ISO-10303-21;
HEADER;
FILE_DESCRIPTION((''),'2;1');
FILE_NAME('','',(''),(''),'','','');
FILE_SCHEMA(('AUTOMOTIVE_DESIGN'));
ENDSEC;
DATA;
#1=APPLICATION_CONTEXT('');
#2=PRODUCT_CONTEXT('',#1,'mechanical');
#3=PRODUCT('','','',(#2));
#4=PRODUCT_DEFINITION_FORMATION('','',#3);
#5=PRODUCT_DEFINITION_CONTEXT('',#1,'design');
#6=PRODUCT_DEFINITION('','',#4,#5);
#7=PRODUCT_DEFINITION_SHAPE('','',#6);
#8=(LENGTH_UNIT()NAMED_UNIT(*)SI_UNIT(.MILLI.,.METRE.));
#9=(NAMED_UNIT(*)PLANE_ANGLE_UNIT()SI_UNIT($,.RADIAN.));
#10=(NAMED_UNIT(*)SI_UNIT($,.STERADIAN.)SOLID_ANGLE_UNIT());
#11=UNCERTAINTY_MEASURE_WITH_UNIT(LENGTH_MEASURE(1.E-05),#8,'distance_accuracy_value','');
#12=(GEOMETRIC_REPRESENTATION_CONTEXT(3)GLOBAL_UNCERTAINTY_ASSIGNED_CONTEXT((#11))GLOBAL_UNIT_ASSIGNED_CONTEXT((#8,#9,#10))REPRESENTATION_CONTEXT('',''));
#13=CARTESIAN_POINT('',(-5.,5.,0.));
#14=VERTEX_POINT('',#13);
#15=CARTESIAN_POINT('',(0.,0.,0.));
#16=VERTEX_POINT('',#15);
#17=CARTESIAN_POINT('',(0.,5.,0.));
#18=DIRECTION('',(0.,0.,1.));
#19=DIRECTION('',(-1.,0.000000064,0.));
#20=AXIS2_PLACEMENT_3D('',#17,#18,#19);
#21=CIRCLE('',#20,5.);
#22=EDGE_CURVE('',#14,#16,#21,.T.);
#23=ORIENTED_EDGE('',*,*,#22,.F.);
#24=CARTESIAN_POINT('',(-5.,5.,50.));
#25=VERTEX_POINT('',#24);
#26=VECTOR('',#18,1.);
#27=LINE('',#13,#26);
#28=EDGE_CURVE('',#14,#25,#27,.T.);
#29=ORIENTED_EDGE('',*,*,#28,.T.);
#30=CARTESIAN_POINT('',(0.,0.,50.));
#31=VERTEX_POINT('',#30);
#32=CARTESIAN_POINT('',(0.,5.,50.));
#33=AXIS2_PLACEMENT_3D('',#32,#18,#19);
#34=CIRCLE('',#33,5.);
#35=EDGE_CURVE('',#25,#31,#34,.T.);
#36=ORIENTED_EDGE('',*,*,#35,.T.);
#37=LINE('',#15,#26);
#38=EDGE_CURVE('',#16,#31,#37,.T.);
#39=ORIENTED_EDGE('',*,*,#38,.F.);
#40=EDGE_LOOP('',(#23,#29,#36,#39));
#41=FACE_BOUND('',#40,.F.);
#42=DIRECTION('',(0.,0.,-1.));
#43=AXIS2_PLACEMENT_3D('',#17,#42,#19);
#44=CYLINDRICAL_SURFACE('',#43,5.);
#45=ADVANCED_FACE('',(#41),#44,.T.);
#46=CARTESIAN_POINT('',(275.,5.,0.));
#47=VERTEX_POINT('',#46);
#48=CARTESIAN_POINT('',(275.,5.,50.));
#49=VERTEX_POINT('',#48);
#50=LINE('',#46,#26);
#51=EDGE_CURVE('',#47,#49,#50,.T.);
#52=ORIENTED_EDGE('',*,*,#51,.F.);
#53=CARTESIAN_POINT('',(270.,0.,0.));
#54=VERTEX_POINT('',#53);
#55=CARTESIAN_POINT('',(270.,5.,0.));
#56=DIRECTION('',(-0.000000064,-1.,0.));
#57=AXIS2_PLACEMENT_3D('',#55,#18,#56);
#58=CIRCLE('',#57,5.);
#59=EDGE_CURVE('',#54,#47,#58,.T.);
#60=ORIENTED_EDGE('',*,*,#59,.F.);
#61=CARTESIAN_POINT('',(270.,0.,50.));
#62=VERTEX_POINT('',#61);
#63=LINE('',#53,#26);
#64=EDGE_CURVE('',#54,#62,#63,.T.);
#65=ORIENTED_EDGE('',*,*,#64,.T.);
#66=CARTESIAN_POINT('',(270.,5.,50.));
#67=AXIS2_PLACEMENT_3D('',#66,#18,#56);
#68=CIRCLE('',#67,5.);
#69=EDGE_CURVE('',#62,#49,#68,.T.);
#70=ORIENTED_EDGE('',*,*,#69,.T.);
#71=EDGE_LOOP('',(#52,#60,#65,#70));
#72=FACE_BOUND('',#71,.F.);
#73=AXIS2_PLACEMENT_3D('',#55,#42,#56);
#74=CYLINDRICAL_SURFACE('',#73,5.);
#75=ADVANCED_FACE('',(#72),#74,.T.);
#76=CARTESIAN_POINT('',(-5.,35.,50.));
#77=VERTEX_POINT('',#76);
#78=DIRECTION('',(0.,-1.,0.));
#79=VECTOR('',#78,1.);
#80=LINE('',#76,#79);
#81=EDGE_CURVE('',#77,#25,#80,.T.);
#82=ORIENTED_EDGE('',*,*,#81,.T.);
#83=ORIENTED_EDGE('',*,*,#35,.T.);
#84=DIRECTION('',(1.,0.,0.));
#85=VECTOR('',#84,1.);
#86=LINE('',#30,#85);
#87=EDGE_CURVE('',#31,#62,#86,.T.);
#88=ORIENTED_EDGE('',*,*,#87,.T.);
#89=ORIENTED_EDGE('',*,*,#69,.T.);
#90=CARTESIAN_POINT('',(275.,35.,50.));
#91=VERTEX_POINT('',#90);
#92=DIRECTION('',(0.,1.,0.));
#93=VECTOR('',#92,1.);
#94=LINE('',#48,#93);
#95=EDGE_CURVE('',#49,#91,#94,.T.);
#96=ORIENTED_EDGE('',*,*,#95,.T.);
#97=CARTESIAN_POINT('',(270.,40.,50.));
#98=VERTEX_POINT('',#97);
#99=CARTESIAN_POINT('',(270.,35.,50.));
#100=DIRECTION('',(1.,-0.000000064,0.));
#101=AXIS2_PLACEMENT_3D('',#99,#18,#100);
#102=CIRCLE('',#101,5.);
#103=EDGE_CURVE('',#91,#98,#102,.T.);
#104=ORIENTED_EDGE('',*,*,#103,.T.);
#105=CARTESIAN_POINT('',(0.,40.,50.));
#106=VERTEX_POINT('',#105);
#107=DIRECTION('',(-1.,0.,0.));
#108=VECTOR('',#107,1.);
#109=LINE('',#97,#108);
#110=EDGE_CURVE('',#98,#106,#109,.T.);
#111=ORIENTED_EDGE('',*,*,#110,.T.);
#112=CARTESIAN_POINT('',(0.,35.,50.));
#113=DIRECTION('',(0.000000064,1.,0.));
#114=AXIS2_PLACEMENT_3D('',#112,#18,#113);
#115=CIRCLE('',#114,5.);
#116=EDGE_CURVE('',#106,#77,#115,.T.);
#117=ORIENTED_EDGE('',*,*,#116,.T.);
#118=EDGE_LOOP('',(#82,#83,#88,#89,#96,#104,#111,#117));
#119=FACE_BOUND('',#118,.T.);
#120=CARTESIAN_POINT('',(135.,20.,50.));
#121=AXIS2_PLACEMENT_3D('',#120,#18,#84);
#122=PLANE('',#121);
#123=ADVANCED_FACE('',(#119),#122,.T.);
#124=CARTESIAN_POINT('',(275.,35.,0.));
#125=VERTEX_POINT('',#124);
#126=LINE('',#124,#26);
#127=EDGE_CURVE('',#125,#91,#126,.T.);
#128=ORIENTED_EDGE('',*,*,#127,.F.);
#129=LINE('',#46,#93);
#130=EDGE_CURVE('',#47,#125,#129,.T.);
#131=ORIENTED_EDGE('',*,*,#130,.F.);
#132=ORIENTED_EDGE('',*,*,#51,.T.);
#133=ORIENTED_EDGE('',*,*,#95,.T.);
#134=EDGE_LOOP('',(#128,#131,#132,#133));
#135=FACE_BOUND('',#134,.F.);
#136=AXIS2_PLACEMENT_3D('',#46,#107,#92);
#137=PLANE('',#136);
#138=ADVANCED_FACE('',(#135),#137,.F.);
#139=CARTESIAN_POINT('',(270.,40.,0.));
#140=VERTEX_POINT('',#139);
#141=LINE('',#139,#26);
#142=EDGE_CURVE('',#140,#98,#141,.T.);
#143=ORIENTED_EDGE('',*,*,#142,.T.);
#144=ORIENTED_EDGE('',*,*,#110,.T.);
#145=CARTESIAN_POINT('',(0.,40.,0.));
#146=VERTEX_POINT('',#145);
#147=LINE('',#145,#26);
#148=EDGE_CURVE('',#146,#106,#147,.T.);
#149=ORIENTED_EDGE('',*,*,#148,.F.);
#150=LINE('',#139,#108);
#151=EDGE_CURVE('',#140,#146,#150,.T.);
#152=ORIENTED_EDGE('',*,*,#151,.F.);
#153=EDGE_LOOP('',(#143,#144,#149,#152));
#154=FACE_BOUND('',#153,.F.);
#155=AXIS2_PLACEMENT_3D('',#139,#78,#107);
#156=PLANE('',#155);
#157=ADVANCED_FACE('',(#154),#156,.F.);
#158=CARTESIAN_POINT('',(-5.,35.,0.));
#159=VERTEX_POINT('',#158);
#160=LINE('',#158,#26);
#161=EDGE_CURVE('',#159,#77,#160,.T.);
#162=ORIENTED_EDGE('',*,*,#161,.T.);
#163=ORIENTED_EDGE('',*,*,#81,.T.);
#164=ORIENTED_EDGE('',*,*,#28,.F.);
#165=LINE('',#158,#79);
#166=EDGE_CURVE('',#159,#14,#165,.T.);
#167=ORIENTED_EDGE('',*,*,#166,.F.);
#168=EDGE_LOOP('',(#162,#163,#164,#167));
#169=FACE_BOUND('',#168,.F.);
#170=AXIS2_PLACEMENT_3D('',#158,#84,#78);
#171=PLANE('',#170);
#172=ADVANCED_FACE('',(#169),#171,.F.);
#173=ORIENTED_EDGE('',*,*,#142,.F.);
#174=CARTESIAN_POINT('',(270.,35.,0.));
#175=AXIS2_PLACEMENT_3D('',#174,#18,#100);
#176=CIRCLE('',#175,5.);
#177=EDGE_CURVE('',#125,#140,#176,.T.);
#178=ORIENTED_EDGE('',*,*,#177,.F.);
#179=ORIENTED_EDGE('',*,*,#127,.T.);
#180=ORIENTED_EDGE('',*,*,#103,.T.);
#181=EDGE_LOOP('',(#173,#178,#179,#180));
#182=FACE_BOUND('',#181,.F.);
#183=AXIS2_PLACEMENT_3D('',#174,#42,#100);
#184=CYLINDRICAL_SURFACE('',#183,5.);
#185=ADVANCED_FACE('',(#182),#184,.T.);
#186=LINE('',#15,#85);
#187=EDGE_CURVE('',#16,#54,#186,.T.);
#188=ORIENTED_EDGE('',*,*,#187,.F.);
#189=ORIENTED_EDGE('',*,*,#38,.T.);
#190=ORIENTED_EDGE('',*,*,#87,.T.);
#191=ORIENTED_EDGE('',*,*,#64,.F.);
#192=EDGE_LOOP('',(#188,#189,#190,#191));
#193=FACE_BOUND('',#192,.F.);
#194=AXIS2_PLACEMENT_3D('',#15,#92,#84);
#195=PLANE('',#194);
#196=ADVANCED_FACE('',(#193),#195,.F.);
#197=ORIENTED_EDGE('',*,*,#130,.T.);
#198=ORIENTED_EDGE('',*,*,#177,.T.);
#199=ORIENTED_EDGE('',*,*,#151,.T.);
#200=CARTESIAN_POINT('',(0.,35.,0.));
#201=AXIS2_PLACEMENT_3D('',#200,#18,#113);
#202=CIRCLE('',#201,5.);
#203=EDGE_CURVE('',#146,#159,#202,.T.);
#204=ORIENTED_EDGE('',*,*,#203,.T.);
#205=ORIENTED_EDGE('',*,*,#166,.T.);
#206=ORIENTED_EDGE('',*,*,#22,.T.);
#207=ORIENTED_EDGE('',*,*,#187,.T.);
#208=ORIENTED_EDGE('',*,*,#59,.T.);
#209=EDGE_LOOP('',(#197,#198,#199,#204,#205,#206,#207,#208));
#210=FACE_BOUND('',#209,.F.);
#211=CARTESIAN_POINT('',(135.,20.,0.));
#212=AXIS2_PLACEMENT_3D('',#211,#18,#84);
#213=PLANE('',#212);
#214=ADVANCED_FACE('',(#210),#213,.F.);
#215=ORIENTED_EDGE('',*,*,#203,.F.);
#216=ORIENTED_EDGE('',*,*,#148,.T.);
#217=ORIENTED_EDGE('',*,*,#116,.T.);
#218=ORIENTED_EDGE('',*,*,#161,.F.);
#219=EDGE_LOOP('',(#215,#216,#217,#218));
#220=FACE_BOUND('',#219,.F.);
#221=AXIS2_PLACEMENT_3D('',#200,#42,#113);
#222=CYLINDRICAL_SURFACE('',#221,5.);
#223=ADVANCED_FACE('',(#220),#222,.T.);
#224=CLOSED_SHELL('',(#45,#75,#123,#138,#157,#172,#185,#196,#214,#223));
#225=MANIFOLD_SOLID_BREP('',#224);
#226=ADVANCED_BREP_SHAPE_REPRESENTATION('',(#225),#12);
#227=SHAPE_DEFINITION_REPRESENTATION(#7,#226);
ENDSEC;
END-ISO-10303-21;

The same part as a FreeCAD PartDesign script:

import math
import FreeCAD as App
import Part
import Sketcher
Q = App.Units.Quantity

doc = App.newDocument("Part")
body = doc.addObject("PartDesign::Body", "Body")

sketch1 = body.newObject("Sketcher::SketchObject", "Sketch")
sketch1.AttachmentSupport = (doc.getObject("XY_Plane"), [""])
sketch1.MapMode = "FlatFace"
sketch1.addGeometry([
    Part.LineSegment(App.Vector(0, 0, 0), App.Vector(270, 0, 0)),
    Part.ArcOfCircle(Part.Circle(App.Vector(270, 5, 0), App.Vector(0, 0, 1), 5), math.radians(-90), math.radians(0)),
    Part.LineSegment(App.Vector(275, 5, 0), App.Vector(275, 35, 0)),
    Part.ArcOfCircle(Part.Circle(App.Vector(270, 35, 0), App.Vector(0, 0, 1), 5), math.radians(0), math.radians(90)),
    Part.LineSegment(App.Vector(270, 40, 0), App.Vector(0, 40, 0)),
    Part.ArcOfCircle(Part.Circle(App.Vector(0, 35, 0), App.Vector(0, 0, 1), 5), math.radians(90), math.radians(180)),
    Part.LineSegment(App.Vector(-5, 35, 0), App.Vector(-5, 5, 0)),
    Part.ArcOfCircle(Part.Circle(App.Vector(0, 5, 0), App.Vector(0, 0, 1), 5), math.radians(180), math.radians(270)),
], False)
sketch1.addConstraint([
    Sketcher.Constraint("Tangent", 0, 2, 1, 1),
    Sketcher.Constraint("Tangent", 1, 2, 2, 1),
    Sketcher.Constraint("Tangent", 2, 2, 3, 1),
    Sketcher.Constraint("Tangent", 3, 2, 4, 1),
    Sketcher.Constraint("Tangent", 4, 2, 5, 1),
    Sketcher.Constraint("Tangent", 5, 2, 6, 1),
    Sketcher.Constraint("Tangent", 6, 2, 7, 1),
    Sketcher.Constraint("Tangent", 7, 2, 0, 1),
    Sketcher.Constraint("Horizontal", 0),
    Sketcher.Constraint("Vertical", 2),
    Sketcher.Constraint("Horizontal", 4),
    Sketcher.Constraint("Vertical", 6),
    Sketcher.Constraint("Coincident", 7, 2, -1, 1),
    Sketcher.Constraint("Equal", 1, 3),
    Sketcher.Constraint("Equal", 3, 5),
    Sketcher.Constraint("Equal", 5, 7),
    Sketcher.Constraint("Radius", 1, Q("5 mm")),
    Sketcher.Constraint("DistanceX", 0, 1, 0, 2, Q("270 mm")),
    Sketcher.Constraint("DistanceY", 2, 1, 2, 2, Q("30 mm")),
])
pad1 = body.newObject("PartDesign::Pad", "Pad")
pad1.Profile = sketch1
pad1.Length = 50

doc.recompute()
